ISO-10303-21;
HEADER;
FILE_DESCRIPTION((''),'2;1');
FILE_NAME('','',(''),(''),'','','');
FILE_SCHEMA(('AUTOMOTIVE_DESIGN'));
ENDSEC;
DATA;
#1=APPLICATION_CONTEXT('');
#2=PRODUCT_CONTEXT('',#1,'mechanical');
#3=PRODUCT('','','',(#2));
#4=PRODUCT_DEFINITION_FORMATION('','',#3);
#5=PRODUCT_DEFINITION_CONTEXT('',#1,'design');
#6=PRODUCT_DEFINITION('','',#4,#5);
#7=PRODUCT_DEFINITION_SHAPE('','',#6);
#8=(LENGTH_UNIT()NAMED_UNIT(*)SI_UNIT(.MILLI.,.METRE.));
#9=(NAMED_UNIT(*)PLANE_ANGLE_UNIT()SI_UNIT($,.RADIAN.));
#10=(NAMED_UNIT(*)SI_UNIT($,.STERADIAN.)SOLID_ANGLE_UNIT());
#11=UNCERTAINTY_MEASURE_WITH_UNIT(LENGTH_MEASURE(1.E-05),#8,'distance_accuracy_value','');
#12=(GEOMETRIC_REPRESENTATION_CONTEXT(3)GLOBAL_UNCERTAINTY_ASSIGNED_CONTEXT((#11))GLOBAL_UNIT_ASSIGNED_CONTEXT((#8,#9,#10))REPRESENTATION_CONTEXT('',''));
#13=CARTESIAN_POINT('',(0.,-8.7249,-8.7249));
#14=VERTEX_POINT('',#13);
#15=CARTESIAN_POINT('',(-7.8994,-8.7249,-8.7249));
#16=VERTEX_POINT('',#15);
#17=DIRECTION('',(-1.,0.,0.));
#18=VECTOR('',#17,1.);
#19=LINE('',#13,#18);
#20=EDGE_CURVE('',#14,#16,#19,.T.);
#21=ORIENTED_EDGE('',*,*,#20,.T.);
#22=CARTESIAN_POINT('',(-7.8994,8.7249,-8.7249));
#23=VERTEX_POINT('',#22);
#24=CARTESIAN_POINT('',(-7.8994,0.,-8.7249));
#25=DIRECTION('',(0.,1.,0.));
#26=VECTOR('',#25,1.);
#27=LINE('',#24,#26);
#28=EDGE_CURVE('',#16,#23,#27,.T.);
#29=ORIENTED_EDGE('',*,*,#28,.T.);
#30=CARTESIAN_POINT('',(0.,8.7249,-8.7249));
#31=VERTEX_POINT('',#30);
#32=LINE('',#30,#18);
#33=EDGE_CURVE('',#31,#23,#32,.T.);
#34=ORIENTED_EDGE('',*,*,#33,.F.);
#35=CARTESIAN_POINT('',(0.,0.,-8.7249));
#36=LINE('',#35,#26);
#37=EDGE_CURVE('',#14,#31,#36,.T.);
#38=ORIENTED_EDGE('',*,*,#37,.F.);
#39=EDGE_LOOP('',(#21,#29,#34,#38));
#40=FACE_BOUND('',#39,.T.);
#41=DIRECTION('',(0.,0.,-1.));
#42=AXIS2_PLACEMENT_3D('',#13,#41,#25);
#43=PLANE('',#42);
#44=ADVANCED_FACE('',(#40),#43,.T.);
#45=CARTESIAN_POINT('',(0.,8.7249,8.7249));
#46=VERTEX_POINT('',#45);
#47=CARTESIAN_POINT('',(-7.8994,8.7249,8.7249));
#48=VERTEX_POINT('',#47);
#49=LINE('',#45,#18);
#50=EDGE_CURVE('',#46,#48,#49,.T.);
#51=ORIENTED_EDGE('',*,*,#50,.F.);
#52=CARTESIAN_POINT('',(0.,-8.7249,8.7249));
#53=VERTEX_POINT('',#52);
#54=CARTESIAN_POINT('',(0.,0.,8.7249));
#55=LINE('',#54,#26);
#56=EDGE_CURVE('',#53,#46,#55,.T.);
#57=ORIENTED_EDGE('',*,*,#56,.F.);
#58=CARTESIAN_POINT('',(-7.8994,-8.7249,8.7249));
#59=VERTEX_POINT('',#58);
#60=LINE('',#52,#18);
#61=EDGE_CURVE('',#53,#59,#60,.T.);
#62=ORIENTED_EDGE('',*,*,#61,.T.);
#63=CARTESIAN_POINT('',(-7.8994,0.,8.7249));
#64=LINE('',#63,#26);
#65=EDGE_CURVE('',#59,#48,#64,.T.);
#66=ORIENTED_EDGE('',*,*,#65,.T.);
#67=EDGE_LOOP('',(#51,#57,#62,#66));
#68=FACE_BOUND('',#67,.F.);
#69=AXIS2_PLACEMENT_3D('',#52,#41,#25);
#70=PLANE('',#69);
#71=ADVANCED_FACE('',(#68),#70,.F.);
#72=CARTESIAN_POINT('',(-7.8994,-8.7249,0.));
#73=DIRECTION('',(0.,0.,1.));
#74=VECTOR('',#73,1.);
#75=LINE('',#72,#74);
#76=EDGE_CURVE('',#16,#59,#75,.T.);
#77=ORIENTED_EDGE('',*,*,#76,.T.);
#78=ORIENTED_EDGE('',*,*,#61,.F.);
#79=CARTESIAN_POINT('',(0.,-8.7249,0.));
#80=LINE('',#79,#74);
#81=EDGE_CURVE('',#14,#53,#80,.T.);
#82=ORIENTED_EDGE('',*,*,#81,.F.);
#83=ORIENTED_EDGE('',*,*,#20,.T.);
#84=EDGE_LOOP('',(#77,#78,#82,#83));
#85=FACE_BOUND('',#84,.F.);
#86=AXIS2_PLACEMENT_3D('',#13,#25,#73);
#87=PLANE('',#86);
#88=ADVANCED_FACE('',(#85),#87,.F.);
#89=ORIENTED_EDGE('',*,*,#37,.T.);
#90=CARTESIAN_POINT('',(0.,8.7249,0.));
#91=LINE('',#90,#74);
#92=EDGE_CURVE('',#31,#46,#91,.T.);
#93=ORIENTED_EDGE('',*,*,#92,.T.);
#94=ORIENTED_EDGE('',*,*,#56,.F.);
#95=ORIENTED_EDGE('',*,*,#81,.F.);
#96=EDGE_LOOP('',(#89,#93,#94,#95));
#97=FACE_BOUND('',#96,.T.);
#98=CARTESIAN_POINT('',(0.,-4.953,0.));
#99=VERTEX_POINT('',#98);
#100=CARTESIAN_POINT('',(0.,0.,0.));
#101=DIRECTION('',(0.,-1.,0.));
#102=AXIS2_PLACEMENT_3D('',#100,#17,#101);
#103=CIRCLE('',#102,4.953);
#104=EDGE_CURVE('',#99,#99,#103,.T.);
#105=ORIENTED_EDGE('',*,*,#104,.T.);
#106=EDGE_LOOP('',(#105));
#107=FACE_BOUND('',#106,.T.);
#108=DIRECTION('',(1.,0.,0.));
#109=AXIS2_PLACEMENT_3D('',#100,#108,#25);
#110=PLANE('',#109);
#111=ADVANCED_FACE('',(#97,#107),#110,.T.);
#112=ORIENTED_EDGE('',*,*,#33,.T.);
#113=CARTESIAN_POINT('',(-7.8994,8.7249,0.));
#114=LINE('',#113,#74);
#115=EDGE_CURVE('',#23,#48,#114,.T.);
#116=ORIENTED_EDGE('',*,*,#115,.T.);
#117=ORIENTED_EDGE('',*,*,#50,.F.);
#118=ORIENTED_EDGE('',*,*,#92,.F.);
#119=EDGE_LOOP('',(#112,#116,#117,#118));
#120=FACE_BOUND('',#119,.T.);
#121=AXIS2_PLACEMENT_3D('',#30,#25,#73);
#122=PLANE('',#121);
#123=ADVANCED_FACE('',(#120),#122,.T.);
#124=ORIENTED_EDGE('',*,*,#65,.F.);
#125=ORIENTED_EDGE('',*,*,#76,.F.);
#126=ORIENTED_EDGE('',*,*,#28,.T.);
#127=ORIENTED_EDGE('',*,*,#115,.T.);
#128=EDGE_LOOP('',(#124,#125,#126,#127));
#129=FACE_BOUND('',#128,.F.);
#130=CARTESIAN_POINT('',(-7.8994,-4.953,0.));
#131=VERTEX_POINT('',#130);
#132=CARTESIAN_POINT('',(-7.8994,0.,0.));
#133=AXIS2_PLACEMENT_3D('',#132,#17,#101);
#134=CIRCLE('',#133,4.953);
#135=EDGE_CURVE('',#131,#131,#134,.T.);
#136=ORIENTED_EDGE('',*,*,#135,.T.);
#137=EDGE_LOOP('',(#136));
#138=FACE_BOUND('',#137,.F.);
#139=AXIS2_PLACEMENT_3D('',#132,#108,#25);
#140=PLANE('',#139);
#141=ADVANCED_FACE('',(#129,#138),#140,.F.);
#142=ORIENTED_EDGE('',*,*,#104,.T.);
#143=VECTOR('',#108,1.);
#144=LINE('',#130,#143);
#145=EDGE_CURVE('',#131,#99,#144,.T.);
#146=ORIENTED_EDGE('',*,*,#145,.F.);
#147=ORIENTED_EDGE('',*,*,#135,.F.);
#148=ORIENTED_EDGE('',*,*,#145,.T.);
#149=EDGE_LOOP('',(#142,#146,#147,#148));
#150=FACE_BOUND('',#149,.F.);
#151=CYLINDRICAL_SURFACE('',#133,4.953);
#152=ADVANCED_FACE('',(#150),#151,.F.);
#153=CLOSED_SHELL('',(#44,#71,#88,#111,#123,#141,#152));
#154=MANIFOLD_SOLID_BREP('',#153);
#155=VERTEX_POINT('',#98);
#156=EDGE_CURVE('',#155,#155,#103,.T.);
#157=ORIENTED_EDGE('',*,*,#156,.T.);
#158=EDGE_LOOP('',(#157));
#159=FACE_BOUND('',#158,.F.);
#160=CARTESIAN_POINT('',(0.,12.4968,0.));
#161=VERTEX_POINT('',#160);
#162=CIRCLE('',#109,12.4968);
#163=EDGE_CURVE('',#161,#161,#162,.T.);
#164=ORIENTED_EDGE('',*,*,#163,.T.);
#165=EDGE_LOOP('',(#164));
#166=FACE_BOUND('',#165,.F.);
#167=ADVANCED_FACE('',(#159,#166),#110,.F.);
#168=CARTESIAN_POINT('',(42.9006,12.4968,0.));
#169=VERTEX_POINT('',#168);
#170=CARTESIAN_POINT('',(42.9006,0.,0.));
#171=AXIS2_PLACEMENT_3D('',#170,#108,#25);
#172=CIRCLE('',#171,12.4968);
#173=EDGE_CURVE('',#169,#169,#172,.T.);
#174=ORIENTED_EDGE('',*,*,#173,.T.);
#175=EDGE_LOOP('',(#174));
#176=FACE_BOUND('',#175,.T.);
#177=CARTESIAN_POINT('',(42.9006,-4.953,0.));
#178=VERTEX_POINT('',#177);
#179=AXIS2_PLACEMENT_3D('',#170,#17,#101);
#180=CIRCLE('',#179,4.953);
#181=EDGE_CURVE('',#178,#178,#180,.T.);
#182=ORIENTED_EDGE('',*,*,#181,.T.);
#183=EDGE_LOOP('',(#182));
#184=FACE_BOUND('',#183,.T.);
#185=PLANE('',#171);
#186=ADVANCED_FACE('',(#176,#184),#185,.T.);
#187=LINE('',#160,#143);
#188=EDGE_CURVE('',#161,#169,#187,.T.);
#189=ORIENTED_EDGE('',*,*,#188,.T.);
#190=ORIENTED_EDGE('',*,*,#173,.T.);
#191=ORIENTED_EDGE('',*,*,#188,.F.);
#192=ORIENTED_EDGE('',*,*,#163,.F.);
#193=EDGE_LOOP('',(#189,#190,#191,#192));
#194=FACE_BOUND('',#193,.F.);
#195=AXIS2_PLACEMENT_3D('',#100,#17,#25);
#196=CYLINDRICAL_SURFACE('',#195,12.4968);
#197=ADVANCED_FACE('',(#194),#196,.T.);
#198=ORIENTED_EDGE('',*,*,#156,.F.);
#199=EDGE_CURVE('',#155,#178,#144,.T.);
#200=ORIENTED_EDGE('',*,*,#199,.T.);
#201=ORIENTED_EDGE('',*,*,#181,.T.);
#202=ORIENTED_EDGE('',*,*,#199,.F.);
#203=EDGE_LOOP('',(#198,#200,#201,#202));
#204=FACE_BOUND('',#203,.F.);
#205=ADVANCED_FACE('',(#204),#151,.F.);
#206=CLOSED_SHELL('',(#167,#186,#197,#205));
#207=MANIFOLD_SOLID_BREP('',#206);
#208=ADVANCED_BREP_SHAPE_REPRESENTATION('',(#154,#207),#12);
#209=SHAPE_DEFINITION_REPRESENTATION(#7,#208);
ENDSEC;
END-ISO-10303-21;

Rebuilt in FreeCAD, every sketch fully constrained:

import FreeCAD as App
import Part
import Sketcher
Q = App.Units.Quantity

doc = App.newDocument("Part")
body = doc.addObject("PartDesign::Body", "Body")

# Sketch on YZ plane
sketch1 = body.newObject("Sketcher::SketchObject", "Sketch")
sketch1.AttachmentSupport = (doc.getObject("YZ_Plane"), [""])
sketch1.MapMode = "FlatFace"
sketch1.addGeometry(Part.LineSegment(App.Vector(-9, 9, 0), App.Vector(-9, -9, 0)), False)
sketch1.addGeometry(Part.LineSegment(App.Vector(-9, -9, 0), App.Vector(9, -9, 0)), False)
sketch1.addGeometry(Part.LineSegment(App.Vector(9, -9, 0), App.Vector(9, 9, 0)), False)
sketch1.addGeometry(Part.LineSegment(App.Vector(9, 9, 0), App.Vector(-9, 9, 0)), False)
sketch1.addConstraint(Sketcher.Constraint("Coincident", 0, 2, 1, 1))
sketch1.addConstraint(Sketcher.Constraint("Coincident", 1, 2, 2, 1))
sketch1.addConstraint(Sketcher.Constraint("Coincident", 2, 2, 3, 1))
sketch1.addConstraint(Sketcher.Constraint("Coincident", 3, 2, 0, 1))
sketch1.addConstraint(Sketcher.Constraint("Vertical", 0))
sketch1.addConstraint(Sketcher.Constraint("Horizontal", 1))
sketch1.addConstraint(Sketcher.Constraint("Vertical", 2))
sketch1.addConstraint(Sketcher.Constraint("Horizontal", 3))
sketch1.addConstraint(Sketcher.Constraint("Symmetric", 0, 2, 2, 2, -1, 1))
sketch1.addConstraint(Sketcher.Constraint("Equal", 3, 0))
sketch1.addConstraint(Sketcher.Constraint("DistanceX", 1, 1, 1, 2, Q("0.687 in")))
pad1 = body.newObject("PartDesign::Pad", "Pad")
pad1.Profile = sketch1
pad1.Length = Q("0.311 in")
pad1.Reversed = True
body2 = doc.addObject("PartDesign::Body", "Body001")

# Sketch on YZ plane
sketch2 = body2.newObject("Sketcher::SketchObject", "Sketch001")
sketch2.AttachmentSupport = (doc.getObject("YZ_Plane001"), [""])
sketch2.MapMode = "FlatFace"
sketch2.addGeometry(Part.Circle(App.Vector(0, 0, 0), App.Vector(0, 0, 1), 12), False)
sketch2.addConstraint(Sketcher.Constraint("Coincident", 0, 3, -1, 1))
sketch2.addConstraint(Sketcher.Constraint("Diameter", 0, Q("0.984 in")))
pad2 = body2.newObject("PartDesign::Pad", "Pad001")
pad2.Profile = sketch2
pad2.Length = Q("1.689 in")
body3 = doc.addObject("PartDesign::Body", "Body002")

# Sketch on YZ plane
sketch3 = body3.newObject("Sketcher::SketchObject", "Sketch002")
sketch3.AttachmentSupport = (doc.getObject("YZ_Plane002"), [""])
sketch3.MapMode = "FlatFace"
sketch3.AttachmentOffset = App.Placement(App.Vector(0, 0, -0.311 * 25.4), App.Rotation())
sketch3.addGeometry(Part.Circle(App.Vector(0, 0, 0), App.Vector(0, 0, 1), 5), False)
sketch3.addConstraint(Sketcher.Constraint("Coincident", 0, 3, -1, 1))
sketch3.addConstraint(Sketcher.Constraint("Diameter", 0, Q("0.39 in")))
pad3 = body3.newObject("PartDesign::Pad", "Pad002")
pad3.Profile = sketch3
pad3.Length = Q("2 in")
doc.recompute()

body4 = doc.addObject("PartDesign::Body", "Body003")
body4.BaseFeature = body3
boolean = body.newObject("PartDesign::Boolean", "Boolean")
boolean.Type = "Cut"
boolean.addObjects([body4])
doc.recompute()

boolean2 = body2.newObject("PartDesign::Boolean", "Boolean001")
boolean2.Type = "Cut"
boolean2.addObjects([body3])

doc.recompute()
